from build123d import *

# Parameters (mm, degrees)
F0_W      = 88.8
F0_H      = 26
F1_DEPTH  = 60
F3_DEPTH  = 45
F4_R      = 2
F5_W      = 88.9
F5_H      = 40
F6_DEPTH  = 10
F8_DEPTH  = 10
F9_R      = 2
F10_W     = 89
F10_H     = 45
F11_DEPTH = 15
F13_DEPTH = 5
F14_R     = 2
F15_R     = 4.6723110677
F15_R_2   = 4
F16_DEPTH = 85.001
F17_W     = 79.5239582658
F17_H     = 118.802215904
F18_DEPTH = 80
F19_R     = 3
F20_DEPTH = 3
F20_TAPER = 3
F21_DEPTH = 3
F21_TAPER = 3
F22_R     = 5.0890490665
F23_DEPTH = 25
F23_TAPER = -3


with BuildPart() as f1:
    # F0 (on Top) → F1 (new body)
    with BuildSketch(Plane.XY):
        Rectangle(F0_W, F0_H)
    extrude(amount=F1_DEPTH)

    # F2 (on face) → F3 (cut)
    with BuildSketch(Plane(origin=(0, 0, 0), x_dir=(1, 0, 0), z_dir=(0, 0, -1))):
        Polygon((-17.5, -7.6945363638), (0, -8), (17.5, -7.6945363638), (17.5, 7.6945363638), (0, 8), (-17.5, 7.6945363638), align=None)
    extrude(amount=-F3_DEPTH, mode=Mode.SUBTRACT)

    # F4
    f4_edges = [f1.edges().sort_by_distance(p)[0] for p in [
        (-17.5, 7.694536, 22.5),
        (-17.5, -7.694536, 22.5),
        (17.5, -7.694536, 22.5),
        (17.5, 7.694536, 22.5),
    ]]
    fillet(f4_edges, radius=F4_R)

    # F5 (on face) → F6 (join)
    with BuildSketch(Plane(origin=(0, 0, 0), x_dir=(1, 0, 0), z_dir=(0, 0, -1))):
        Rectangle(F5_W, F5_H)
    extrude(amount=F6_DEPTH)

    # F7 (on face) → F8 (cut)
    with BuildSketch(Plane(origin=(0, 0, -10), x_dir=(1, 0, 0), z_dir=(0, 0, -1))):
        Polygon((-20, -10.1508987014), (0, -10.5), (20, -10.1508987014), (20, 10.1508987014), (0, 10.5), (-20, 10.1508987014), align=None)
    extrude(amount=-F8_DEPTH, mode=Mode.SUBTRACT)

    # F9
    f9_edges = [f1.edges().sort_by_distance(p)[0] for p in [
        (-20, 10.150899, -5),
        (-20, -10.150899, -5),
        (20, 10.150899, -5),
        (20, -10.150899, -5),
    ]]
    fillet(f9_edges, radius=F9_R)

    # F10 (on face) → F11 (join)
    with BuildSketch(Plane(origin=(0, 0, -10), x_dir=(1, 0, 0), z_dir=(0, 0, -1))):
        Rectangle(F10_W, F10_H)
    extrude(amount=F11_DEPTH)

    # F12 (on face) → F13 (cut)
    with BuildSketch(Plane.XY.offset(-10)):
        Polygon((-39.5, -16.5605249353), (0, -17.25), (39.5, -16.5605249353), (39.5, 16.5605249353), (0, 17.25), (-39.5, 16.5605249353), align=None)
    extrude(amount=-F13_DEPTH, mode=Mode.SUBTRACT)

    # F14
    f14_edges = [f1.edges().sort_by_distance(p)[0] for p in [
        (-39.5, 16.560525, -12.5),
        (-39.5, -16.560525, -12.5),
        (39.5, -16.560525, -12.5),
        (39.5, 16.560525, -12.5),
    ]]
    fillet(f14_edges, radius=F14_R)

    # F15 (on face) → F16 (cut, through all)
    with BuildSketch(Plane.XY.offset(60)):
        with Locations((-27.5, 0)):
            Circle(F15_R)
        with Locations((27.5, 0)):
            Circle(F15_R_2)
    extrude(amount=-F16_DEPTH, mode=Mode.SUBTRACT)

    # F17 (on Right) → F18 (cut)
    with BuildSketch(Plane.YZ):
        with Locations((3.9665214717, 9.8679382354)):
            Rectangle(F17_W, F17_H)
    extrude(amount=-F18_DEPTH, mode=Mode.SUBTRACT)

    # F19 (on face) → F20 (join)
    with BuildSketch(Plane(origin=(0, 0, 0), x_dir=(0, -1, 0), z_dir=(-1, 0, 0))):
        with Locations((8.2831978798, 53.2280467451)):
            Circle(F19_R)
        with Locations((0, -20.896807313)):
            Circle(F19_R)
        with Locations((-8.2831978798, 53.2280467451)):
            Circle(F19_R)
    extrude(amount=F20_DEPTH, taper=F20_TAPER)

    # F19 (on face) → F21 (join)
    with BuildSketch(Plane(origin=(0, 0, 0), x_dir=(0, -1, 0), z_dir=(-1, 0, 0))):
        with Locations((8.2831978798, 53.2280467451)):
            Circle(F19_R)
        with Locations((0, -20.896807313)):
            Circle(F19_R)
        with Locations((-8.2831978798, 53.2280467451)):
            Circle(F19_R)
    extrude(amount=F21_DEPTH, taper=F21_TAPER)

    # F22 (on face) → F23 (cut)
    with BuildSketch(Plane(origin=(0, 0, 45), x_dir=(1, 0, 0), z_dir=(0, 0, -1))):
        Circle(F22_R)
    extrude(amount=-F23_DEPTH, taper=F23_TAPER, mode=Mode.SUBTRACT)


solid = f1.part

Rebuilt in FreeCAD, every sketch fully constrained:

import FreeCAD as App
import Part
import Sketcher
Q = App.Units.Quantity


def edges_at(feature, points):
    """Names of the edges that pass closest to the given points."""
    edges = feature.Shape.Edges
    near = lambda p: min(range(len(edges)), key=lambda i: edges[i].distToShape(Part.Vertex(*p))[0])
    return sorted({f"Edge{near(p) + 1}" for p in points})

doc = App.newDocument("Part")
body = doc.addObject("PartDesign::Body", "Body")

sketch1 = body.newObject("Sketcher::SketchObject", "Sketch")
sketch1.AttachmentSupport = (doc.getObject("XY_Plane"), [""])
sketch1.MapMode = "FlatFace"
sketch1.addGeometry([
    Part.LineSegment(App.Vector(-44.4, 13, 0), App.Vector(-44.4, -13, 0)),
    Part.LineSegment(App.Vector(-44.4, -13, 0), App.Vector(44.4, -13, 0)),
    Part.LineSegment(App.Vector(44.4, -13, 0), App.Vector(44.4, 13, 0)),
    Part.LineSegment(App.Vector(44.4, 13, 0), App.Vector(-44.4, 13, 0)),
], False)
sketch1.addConstraint([
    Sketcher.Constraint("Coincident", 0, 2, 1, 1),
    Sketcher.Constraint("Coincident", 1, 2, 2, 1),
    Sketcher.Constraint("Coincident", 2, 2, 3, 1),
    Sketcher.Constraint("Coincident", 3, 2, 0, 1),
    Sketcher.Constraint("Vertical", 0),
    Sketcher.Constraint("Horizontal", 1),
    Sketcher.Constraint("Vertical", 2),
    Sketcher.Constraint("Horizontal", 3),
    Sketcher.Constraint("Symmetric", 0, 2, 2, 2, -1, 1),
    Sketcher.Constraint("DistanceY", 0, 2, 0, 1, Q("26 mm")),
    Sketcher.Constraint("DistanceX", 1, 1, 1, 2, Q("88.8 mm")),
])
pad1 = body.newObject("PartDesign::Pad", "Pad")
pad1.Profile = sketch1
pad1.Length = 60

sketch2 = body.newObject("Sketcher::SketchObject", "Sketch001")
sketch2.AttachmentSupport = (doc.getObject("XY_Plane"), [""])
sketch2.MapMode = "FlatFace"
sketch2.addGeometry([
    Part.LineSegment(App.Vector(-17.5, 7.694536, 0), App.Vector(0, 8, 0)),
    Part.LineSegment(App.Vector(0, 8, 0), App.Vector(17.5, 7.694536, 0)),
    Part.LineSegment(App.Vector(17.5, 7.694536, 0), App.Vector(17.5, -7.694536, 0)),
    Part.LineSegment(App.Vector(17.5, -7.694536, 0), App.Vector(0, -8, 0)),
    Part.LineSegment(App.Vector(0, -8, 0), App.Vector(-17.5, -7.694536, 0)),
    Part.LineSegment(App.Vector(-17.5, -7.694536, 0), App.Vector(-17.5, 7.694536, 0)),
], False)
sketch2.addConstraint([
    Sketcher.Constraint("Coincident", 0, 2, 1, 1),
    Sketcher.Constraint("Coincident", 1, 2, 2, 1),
    Sketcher.Constraint("Coincident", 2, 2, 3, 1),
    Sketcher.Constraint("Coincident", 3, 2, 4, 1),
    Sketcher.Constraint("Coincident", 4, 2, 5, 1),
    Sketcher.Constraint("Coincident", 5, 2, 0, 1),
    Sketcher.Constraint("Vertical", 2),
    Sketcher.Constraint("Vertical", 5),
    Sketcher.Constraint("Symmetric", 0, 2, 3, 2, -1, 1),
    Sketcher.Constraint("Symmetric", 1, 2, 4, 2, -1, 1),
    Sketcher.Constraint("PointOnObject", 0, 2, -2),
    Sketcher.Constraint("Parallel", 0, 3),
    Sketcher.Constraint("Horizontal", 2, 2, 4, 2),
    Sketcher.Constraint("Angle", 0, Q("1 deg")),
    Sketcher.Constraint("DistanceY", -1, 1, 0, 2, Q("8 mm")),
    Sketcher.Constraint("DistanceX", 4, 2, 2, 2, Q("35 mm")),
])
pocket1 = body.newObject("PartDesign::Pocket", "Pocket")
pocket1.Profile = sketch2
pocket1.Length = 45
pocket1.Reversed = True
doc.recompute()

fillet = body.newObject("PartDesign::Fillet", "Fillet")
fillet.Base = (pocket1, edges_at(pocket1, [
    (-17.5, 7.695, 22.5),
    (-17.5, -7.695, 22.5),
    (17.5, -7.695, 22.5),
    (17.5, 7.695, 22.5),
]))
fillet.Radius = 2

sketch3 = body.newObject("Sketcher::SketchObject", "Sketch002")
sketch3.AttachmentSupport = (doc.getObject("XY_Plane"), [""])
sketch3.MapMode = "FlatFace"
sketch3.addGeometry([
    Part.LineSegment(App.Vector(-44.45, -20, 0), App.Vector(-44.45, 20, 0)),
    Part.LineSegment(App.Vector(-44.45, 20, 0), App.Vector(44.45, 20, 0)),
    Part.LineSegment(App.Vector(44.45, 20, 0), App.Vector(44.45, -20, 0)),
    Part.LineSegment(App.Vector(44.45, -20, 0), App.Vector(-44.45, -20, 0)),
], False)
sketch3.addConstraint([
    Sketcher.Constraint("Coincident", 0, 2, 1, 1),
    Sketcher.Constraint("Coincident", 1, 2, 2, 1),
    Sketcher.Constraint("Coincident", 2, 2, 3, 1),
    Sketcher.Constraint("Coincident", 3, 2, 0, 1),
    Sketcher.Constraint("Vertical", 0),
    Sketcher.Constraint("Horizontal", 1),
    Sketcher.Constraint("Vertical", 2),
    Sketcher.Constraint("Horizontal", 3),
    Sketcher.Constraint("Symmetric", 0, 2, 2, 2, -1, 1),
    Sketcher.Constraint("DistanceY", 0, 1, 0, 2, Q("40 mm")),
    Sketcher.Constraint("DistanceX", 1, 1, 1, 2, Q("88.9 mm")),
])
pad2 = body.newObject("PartDesign::Pad", "Pad001")
pad2.Profile = sketch3
pad2.Length = 10
pad2.Reversed = True

sketch4 = body.newObject("Sketcher::SketchObject", "Sketch003")
sketch4.AttachmentSupport = (doc.getObject("XY_Plane"), [""])
sketch4.MapMode = "FlatFace"
sketch4.AttachmentOffset = App.Placement(App.Vector(0, 0, -10), App.Rotation())
sketch4.addGeometry([
    Part.LineSegment(App.Vector(-20, 10.150899, 0), App.Vector(0, 10.5, 0)),
    Part.LineSegment(App.Vector(0, 10.5, 0), App.Vector(20, 10.150899, 0)),
    Part.LineSegment(App.Vector(20, 10.150899, 0), App.Vector(20, -10.150899, 0)),
    Part.LineSegment(App.Vector(20, -10.150899, 0), App.Vector(0, -10.5, 0)),
    Part.LineSegment(App.Vector(0, -10.5, 0), App.Vector(-20, -10.150899, 0)),
    Part.LineSegment(App.Vector(-20, -10.150899, 0), App.Vector(-20, 10.150899, 0)),
], False)
sketch4.addConstraint([
    Sketcher.Constraint("Coincident", 0, 2, 1, 1),
    Sketcher.Constraint("Coincident", 1, 2, 2, 1),
    Sketcher.Constraint("Coincident", 2, 2, 3, 1),
    Sketcher.Constraint("Coincident", 3, 2, 4, 1),
    Sketcher.Constraint("Coincident", 4, 2, 5, 1),
    Sketcher.Constraint("Coincident", 5, 2, 0, 1),
    Sketcher.Constraint("Vertical", 2),
    Sketcher.Constraint("Vertical", 5),
    Sketcher.Constraint("Symmetric", 0, 2, 3, 2, -1, 1),
    Sketcher.Constraint("Symmetric", 1, 2, 4, 2, -1, 1),
    Sketcher.Constraint("PointOnObject", 0, 2, -2),
    Sketcher.Constraint("Parallel", 0, 3),
    Sketcher.Constraint("Horizontal", 2, 2, 4, 2),
    Sketcher.Constraint("Angle", 0, Q("1 deg")),
    Sketcher.Constraint("DistanceX", -1, 1, 1, 2, Q("20 mm")),
    Sketcher.Constraint("DistanceY", 3, 2, 0, 2, Q("21 mm")),
])
pocket2 = body.newObject("PartDesign::Pocket", "Pocket001")
pocket2.Profile = sketch4
pocket2.Length = 10
pocket2.Reversed = True
doc.recompute()

fillet2 = body.newObject("PartDesign::Fillet", "Fillet001")
fillet2.Base = (pocket2, edges_at(pocket2, [
    (-20, 10.151, -5),
    (-20, -10.151, -5),
    (20, 10.151, -5),
    (20, -10.151, -5),
]))
fillet2.Radius = 2

sketch5 = body.newObject("Sketcher::SketchObject", "Sketch004")
sketch5.AttachmentSupport = (doc.getObject("XY_Plane"), [""])
sketch5.MapMode = "FlatFace"
sketch5.AttachmentOffset = App.Placement(App.Vector(0, 0, -10), App.Rotation())
sketch5.addGeometry([
    Part.LineSegment(App.Vector(-44.5, -22.5, 0), App.Vector(-44.5, 22.5, 0)),
    Part.LineSegment(App.Vector(-44.5, 22.5, 0), App.Vector(44.5, 22.5, 0)),
    Part.LineSegment(App.Vector(44.5, 22.5, 0), App.Vector(44.5, -22.5, 0)),
    Part.LineSegment(App.Vector(44.5, -22.5, 0), App.Vector(-44.5, -22.5, 0)),
], False)
sketch5.addConstraint([
    Sketcher.Constraint("Coincident", 0, 2, 1, 1),
    Sketcher.Constraint("Coincident", 1, 2, 2, 1),
    Sketcher.Constraint("Coincident", 2, 2, 3, 1),
    Sketcher.Constraint("Coincident", 3, 2, 0, 1),
    Sketcher.Constraint("Vertical", 0),
    Sketcher.Constraint("Horizontal", 1),
    Sketcher.Constraint("Vertical", 2),
    Sketcher.Constraint("Horizontal", 3),
    Sketcher.Constraint("Symmetric", 0, 2, 2, 2, -1, 1),
    Sketcher.Constraint("DistanceX", 1, 1, 1, 2, Q("89 mm")),
    Sketcher.Constraint("DistanceY", 0, 1, 0, 2, Q("45 mm")),
])
pad3 = body.newObject("PartDesign::Pad", "Pad002")
pad3.Profile = sketch5
pad3.Length = 15
pad3.Reversed = True

sketch6 = body.newObject("Sketcher::SketchObject", "Sketch005")
sketch6.AttachmentSupport = (doc.getObject("XY_Plane"), [""])
sketch6.MapMode = "FlatFace"
sketch6.AttachmentOffset = App.Placement(App.Vector(0, 0, -10), App.Rotation())
sketch6.addGeometry([
    Part.LineSegment(App.Vector(-39.5, -16.560525, 0), App.Vector(0, -17.25, 0)),
    Part.LineSegment(App.Vector(0, -17.25, 0), App.Vector(39.5, -16.560525, 0)),
    Part.LineSegment(App.Vector(39.5, -16.560525, 0), App.Vector(39.5, 16.560525, 0)),
    Part.LineSegment(App.Vector(39.5, 16.560525, 0), App.Vector(0, 17.25, 0)),
    Part.LineSegment(App.Vector(0, 17.25, 0), App.Vector(-39.5, 16.560525, 0)),
    Part.LineSegment(App.Vector(-39.5, 16.560525, 0), App.Vector(-39.5, -16.560525, 0)),
], False)
sketch6.addConstraint([
    Sketcher.Constraint("Coincident", 0, 2, 1, 1),
    Sketcher.Constraint("Coincident", 1, 2, 2, 1),
    Sketcher.Constraint("Coincident", 2, 2, 3, 1),
    Sketcher.Constraint("Coincident", 3, 2, 4, 1),
    Sketcher.Constraint("Coincident", 4, 2, 5, 1),
    Sketcher.Constraint("Coincident", 5, 2, 0, 1),
    Sketcher.Constraint("Vertical", 2),
    Sketcher.Constraint("Vertical", 5),
    Sketcher.Constraint("Symmetric", 0, 2, 3, 2, -1, 1),
    Sketcher.Constraint("Symmetric", 1, 2, 4, 2, -1, 1),
    Sketcher.Constraint("PointOnObject", 0, 2, -2),
    Sketcher.Constraint("Parallel", 0, 3),
    Sketcher.Constraint("Horizontal", 2, 2, 4, 2),
    Sketcher.Constraint("Angle", 0, Q("-1 deg")),
    Sketcher.Constraint("DistanceX", 4, 2, 2, 2, Q("79 mm")),
    Sketcher.Constraint("DistanceY", 0, 2, 3, 2, Q("34.5 mm")),
])
pocket3 = body.newObject("PartDesign::Pocket", "Pocket002")
pocket3.Profile = sketch6
pocket3.Length = 5
doc.recompute()

fillet3 = body.newObject("PartDesign::Fillet", "Fillet002")
fillet3.Base = (pocket3, edges_at(pocket3, [
    (-39.5, 16.561, -12.5),
    (-39.5, -16.561, -12.5),
    (39.5, -16.561, -12.5),
    (39.5, 16.561, -12.5),
]))
fillet3.Radius = 2

sketch7 = body.newObject("Sketcher::SketchObject", "Sketch006")
sketch7.AttachmentSupport = (doc.getObject("XY_Plane"), [""])
sketch7.MapMode = "FlatFace"
sketch7.AttachmentOffset = App.Placement(App.Vector(0, 0, 60), App.Rotation())
sketch7.addGeometry([
    Part.Circle(App.Vector(-27.5, 0, 0), App.Vector(0, 0, 1), 4.672311),
    Part.Circle(App.Vector(27.5, 0, 0), App.Vector(0, 0, 1), 4),
], False)
sketch7.addConstraint([
    Sketcher.Constraint("Symmetric", 0, 3, 1, 3, -1, 1),
    Sketcher.Constraint("PointOnObject", 0, 3, -1),
    Sketcher.Constraint("Diameter", 1, Q("8 mm")),
    Sketcher.Constraint("DistanceX", 0, 3, 1, 3, Q("55 mm")),
    Sketcher.Constraint("Diameter", 0, Q("9.344622 mm")),
])
pocket4 = body.newObject("PartDesign::Pocket", "Pocket003")
pocket4.Profile = sketch7
pocket4.Type = "ThroughAll"

sketch8 = body.newObject("Sketcher::SketchObject", "Sketch007")
sketch8.AttachmentSupport = (doc.getObject("YZ_Plane"), [""])
sketch8.MapMode = "FlatFace"
sketch8.addGeometry([
    Part.LineSegment(App.Vector(-35.795458, 69.269046, 0), App.Vector(-35.795458, -49.53317, 0)),
    Part.LineSegment(App.Vector(-35.795458, -49.53317, 0), App.Vector(43.728501, -49.53317, 0)),
    Part.LineSegment(App.Vector(43.728501, -49.53317, 0), App.Vector(43.728501, 69.269046, 0)),
    Part.LineSegment(App.Vector(43.728501, 69.269046, 0), App.Vector(-35.795458, 69.269046, 0)),
], False)
sketch8.addConstraint([
    Sketcher.Constraint("Coincident", 0, 2, 1, 1),
    Sketcher.Constraint("Coincident", 1, 2, 2, 1),
    Sketcher.Constraint("Coincident", 2, 2, 3, 1),
    Sketcher.Constraint("Coincident", 3, 2, 0, 1),
    Sketcher.Constraint("Vertical", 0),
    Sketcher.Constraint("Horizontal", 1),
    Sketcher.Constraint("Vertical", 2),
    Sketcher.Constraint("Horizontal", 3),
    Sketcher.Constraint("DistanceX", 1, 1, 1, 2, Q("79.523958 mm")),
    Sketcher.Constraint("DistanceX", -1, 1, 1, 2, Q("43.728501 mm")),
    Sketcher.Constraint("DistanceY", 0, 2, 0, 1, Q("118.802216 mm")),
    Sketcher.Constraint("DistanceY", 0, 2, -1, 1, Q("49.53317 mm")),
])
pocket5 = body.newObject("PartDesign::Pocket", "Pocket004")
pocket5.Profile = sketch8
pocket5.Length = 80

sketch9 = body.newObject("Sketcher::SketchObject", "Sketch008")
sketch9.AttachmentSupport = (doc.getObject("YZ_Plane"), [""])
sketch9.MapMode = "FlatFace"
sketch9.addGeometry([
    Part.Circle(App.Vector(-8.283198, 53.228047, 0), App.Vector(0, 0, 1), 3),
    Part.Circle(App.Vector(0, -20.896807, 0), App.Vector(0, 0, 1), 3),
    Part.Circle(App.Vector(8.283198, 53.228047, 0), App.Vector(0, 0, 1), 3),
], False)
sketch9.addConstraint([
    Sketcher.Constraint("Equal", 0, 1),
    Sketcher.Constraint("Equal", 1, 2),
    Sketcher.Constraint("Symmetric", 0, 3, 2, 3, -2),
    Sketcher.Constraint("PointOnObject", 1, 3, -2),
    Sketcher.Constraint("Diameter", 0, Q("6 mm")),
    Sketcher.Constraint("DistanceX", 0, 3, -1, 1, Q("8.283198 mm")),
    Sketcher.Constraint("DistanceY", -1, 1, 0, 3, Q("53.228047 mm")),
    Sketcher.Constraint("DistanceY", 1, 3, -1, 1, Q("20.896807 mm")),
])
pad4 = body.newObject("PartDesign::Pad", "Pad003")
pad4.Profile = sketch9
pad4.Length = 3
pad4.Reversed = True
pad4.TaperAngle = -3

sketch10 = body.newObject("Sketcher::SketchObject", "Sketch009")
sketch10.AttachmentSupport = (doc.getObject("YZ_Plane"), [""])
sketch10.MapMode = "FlatFace"
sketch10.addGeometry([
    Part.Circle(App.Vector(-8.283198, 53.228047, 0), App.Vector(0, 0, 1), 3),
    Part.Circle(App.Vector(0, -20.896807, 0), App.Vector(0, 0, 1), 3),
    Part.Circle(App.Vector(8.283198, 53.228047, 0), App.Vector(0, 0, 1), 3),
], False)
sketch10.addConstraint([
    Sketcher.Constraint("Equal", 0, 1),
    Sketcher.Constraint("Equal", 1, 2),
    Sketcher.Constraint("Symmetric", 0, 3, 2, 3, -2),
    Sketcher.Constraint("PointOnObject", 1, 3, -2),
    Sketcher.Constraint("Diameter", 0, Q("6 mm")),
    Sketcher.Constraint("DistanceX", 0, 3, -1, 1, Q("8.283198 mm")),
    Sketcher.Constraint("DistanceY", -1, 1, 0, 3, Q("53.228047 mm")),
    Sketcher.Constraint("DistanceY", 1, 3, -1, 1, Q("20.896807 mm")),
])
pad5 = body.newObject("PartDesign::Pad", "Pad004")
pad5.Profile = sketch10
pad5.Length = 3
pad5.Reversed = True
pad5.TaperAngle = -3

sketch11 = body.newObject("Sketcher::SketchObject", "Sketch010")
sketch11.AttachmentSupport = (doc.getObject("XY_Plane"), [""])
sketch11.MapMode = "FlatFace"
sketch11.AttachmentOffset = App.Placement(App.Vector(0, 0, 45), App.Rotation())
sketch11.addGeometry(Part.Circle(App.Vector(0, 0, 0), App.Vector(0, 0, 1), 5.089049), False)
sketch11.addConstraint([
    Sketcher.Constraint("Coincident", 0, 3, -1, 1),
    Sketcher.Constraint("Diameter", 0, Q("10.178098 mm")),
])
pocket6 = body.newObject("PartDesign::Pocket", "Pocket005")
pocket6.Profile = sketch11
pocket6.Length = 25
pocket6.Reversed = True
pocket6.TaperAngle = 3

doc.recompute()
